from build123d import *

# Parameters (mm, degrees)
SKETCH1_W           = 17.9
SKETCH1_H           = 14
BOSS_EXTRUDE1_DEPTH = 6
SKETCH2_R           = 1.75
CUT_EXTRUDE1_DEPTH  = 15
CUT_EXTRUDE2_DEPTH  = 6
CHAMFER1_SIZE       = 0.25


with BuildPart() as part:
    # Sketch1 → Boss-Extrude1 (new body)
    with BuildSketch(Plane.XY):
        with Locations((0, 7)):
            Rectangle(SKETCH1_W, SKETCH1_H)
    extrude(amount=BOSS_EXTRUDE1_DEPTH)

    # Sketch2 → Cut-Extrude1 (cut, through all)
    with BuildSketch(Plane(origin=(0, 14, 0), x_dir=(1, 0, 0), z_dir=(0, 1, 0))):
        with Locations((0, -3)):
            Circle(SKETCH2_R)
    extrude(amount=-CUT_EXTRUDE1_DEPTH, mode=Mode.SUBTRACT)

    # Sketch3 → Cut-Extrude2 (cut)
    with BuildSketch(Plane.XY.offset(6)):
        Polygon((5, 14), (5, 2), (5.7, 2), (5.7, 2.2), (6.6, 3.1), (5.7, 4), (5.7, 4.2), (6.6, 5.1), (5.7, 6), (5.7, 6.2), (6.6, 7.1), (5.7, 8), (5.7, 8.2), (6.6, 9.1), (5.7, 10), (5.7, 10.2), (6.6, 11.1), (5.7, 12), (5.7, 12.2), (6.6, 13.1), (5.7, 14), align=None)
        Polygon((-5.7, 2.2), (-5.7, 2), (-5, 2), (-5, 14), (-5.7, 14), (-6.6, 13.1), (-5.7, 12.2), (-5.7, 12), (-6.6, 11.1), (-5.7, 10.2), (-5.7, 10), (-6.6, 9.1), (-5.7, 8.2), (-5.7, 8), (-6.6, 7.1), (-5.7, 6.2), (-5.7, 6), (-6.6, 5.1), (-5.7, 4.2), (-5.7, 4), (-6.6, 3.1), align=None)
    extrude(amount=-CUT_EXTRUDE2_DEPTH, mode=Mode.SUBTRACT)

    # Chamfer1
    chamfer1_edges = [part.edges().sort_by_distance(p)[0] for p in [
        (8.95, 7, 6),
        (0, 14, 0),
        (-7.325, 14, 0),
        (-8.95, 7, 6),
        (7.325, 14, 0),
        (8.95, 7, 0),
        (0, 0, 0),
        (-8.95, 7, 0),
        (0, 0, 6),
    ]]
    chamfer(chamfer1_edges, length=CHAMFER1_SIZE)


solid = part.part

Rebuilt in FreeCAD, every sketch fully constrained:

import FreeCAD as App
import Part
import Sketcher

V = App.Vector


def edges_at(feature, points):
    """Names of the edges that pass closest to the given points."""
    edges = feature.Shape.Edges
    near = lambda p: min(range(len(edges)), key=lambda i: edges[i].distToShape(Part.Vertex(*p))[0])
    return sorted({f"Edge{near(p) + 1}" for p in points})

doc = App.newDocument("Part")
body = doc.addObject("PartDesign::Body", "Body")

# Sketch on XY plane
sketch1 = body.newObject("Sketcher::SketchObject", "Sketch")
sketch1.AttachmentSupport = (doc.getObject("XY_Plane"), [""])
sketch1.MapMode = "FlatFace"
sketch1.addGeometry(Part.LineSegment(V(-9, 14, 0), V(-9, 0, 0)), False)
sketch1.addGeometry(Part.LineSegment(V(-9, 0, 0), V(9, 0, 0)), False)
sketch1.addGeometry(Part.LineSegment(V(9, 0, 0), V(9, 14, 0)), False)
sketch1.addGeometry(Part.LineSegment(V(9, 14, 0), V(-9, 14, 0)), False)
sketch1.addConstraint(Sketcher.Constraint("Coincident", 0, 2, 1, 1))
sketch1.addConstraint(Sketcher.Constraint("Coincident", 1, 2, 2, 1))
sketch1.addConstraint(Sketcher.Constraint("Coincident", 2, 2, 3, 1))
sketch1.addConstraint(Sketcher.Constraint("Coincident", 3, 2, 0, 1))
sketch1.addConstraint(Sketcher.Constraint("Vertical", 0))
sketch1.addConstraint(Sketcher.Constraint("Horizontal", 1))
sketch1.addConstraint(Sketcher.Constraint("Vertical", 2))
sketch1.addConstraint(Sketcher.Constraint("Horizontal", 3))
sketch1.addConstraint(Sketcher.Constraint("Symmetric", 0, 2, 1, 2, -1, 1))
sketch1.addConstraint(Sketcher.Constraint("DistanceY", 0, 2, 0, 1, 14.0))
sketch1.addConstraint(Sketcher.Constraint("DistanceX", 1, 1, 1, 2, 17.9))
pad1 = body.newObject("PartDesign::Pad", "Pad")
pad1.Profile = sketch1
pad1.Length = 6

# Sketch on XZ plane
sketch2 = body.newObject("Sketcher::SketchObject", "Sketch001")
sketch2.AttachmentSupport = (doc.getObject("XZ_Plane"), [""])
sketch2.MapMode = "FlatFace"
sketch2.AttachmentOffset = App.Placement(V(0, 0, -14), App.Rotation())
sketch2.addGeometry(Part.Circle(V(0, 3, 0), V(0, 0, 1), 1.8), False)
sketch2.addConstraint(Sketcher.Constraint("PointOnObject", 0, 3, -2))
sketch2.addConstraint(Sketcher.Constraint("Diameter", 0, 3.5))
sketch2.addConstraint(Sketcher.Constraint("DistanceY", -1, 1, 0, 3, 3.0))
pocket1 = body.newObject("PartDesign::Pocket", "Pocket")
pocket1.Profile = sketch2
pocket1.Type = "ThroughAll"
pocket1.Reversed = True

# Sketch on XY plane
sketch3 = body.newObject("Sketcher::SketchObject", "Sketch002")
sketch3.AttachmentSupport = (doc.getObject("XY_Plane"), [""])
sketch3.MapMode = "FlatFace"
sketch3.AttachmentOffset = App.Placement(V(0, 0, 6), App.Rotation())
sketch3.addGeometry(Part.LineSegment(V(5, 14, 0), V(5, 2, 0)), False)
sketch3.addGeometry(Part.LineSegment(V(5, 2, 0), V(5.7, 2, 0)), False)
sketch3.addGeometry(Part.LineSegment(V(5.7, 2, 0), V(5.7, 2.2, 0)), False)
sketch3.addGeometry(Part.LineSegment(V(5.7, 2.2, 0), V(6.6, 3.1, 0)), False)
sketch3.addGeometry(Part.LineSegment(V(6.6, 3.1, 0), V(5.7, 4, 0)), False)
sketch3.addGeometry(Part.LineSegment(V(5.7, 4, 0), V(5.7, 4.2, 0)), False)
sketch3.addGeometry(Part.LineSegment(V(5.7, 4.2, 0), V(6.6, 5.1, 0)), False)
sketch3.addGeometry(Part.LineSegment(V(6.6, 5.1, 0), V(5.7, 6, 0)), False)
sketch3.addGeometry(Part.LineSegment(V(5.7, 6, 0), V(5.7, 6.2, 0)), False)
sketch3.addGeometry(Part.LineSegment(V(5.7, 6.2, 0), V(6.6, 7.1, 0)), False)
sketch3.addGeometry(Part.LineSegment(V(6.6, 7.1, 0), V(5.7, 8, 0)), False)
sketch3.addGeometry(Part.LineSegment(V(5.7, 8, 0), V(5.7, 8.2, 0)), False)
sketch3.addGeometry(Part.LineSegment(V(5.7, 8.2, 0), V(6.6, 9.1, 0)), False)
sketch3.addGeometry(Part.LineSegment(V(6.6, 9.1, 0), V(5.7, 10, 0)), False)
sketch3.addGeometry(Part.LineSegment(V(5.7, 10, 0), V(5.7, 10.2, 0)), False)
sketch3.addGeometry(Part.LineSegment(V(5.7, 10.2, 0), V(6.6, 11.1, 0)), False)
sketch3.addGeometry(Part.LineSegment(V(6.6, 11.1, 0), V(5.7, 12, 0)), False)
sketch3.addGeometry(Part.LineSegment(V(5.7, 12, 0), V(5.7, 12.2, 0)), False)
sketch3.addGeometry(Part.LineSegment(V(5.7, 12.2, 0), V(6.6, 13.1, 0)), False)
sketch3.addGeometry(Part.LineSegment(V(6.6, 13.1, 0), V(5.7, 14, 0)), False)
sketch3.addGeometry(Part.LineSegment(V(5.7, 14, 0), V(5, 14, 0)), False)
sketch3.addGeometry(Part.LineSegment(V(-5.7, 2.2, 0), V(-5.7, 2, 0)), False)
sketch3.addGeometry(Part.LineSegment(V(-5.7, 2, 0), V(-5, 2, 0)), False)
sketch3.addGeometry(Part.LineSegment(V(-5, 2, 0), V(-5, 14, 0)), False)
sketch3.addGeometry(Part.LineSegment(V(-5, 14, 0), V(-5.7, 14, 0)), False)
sketch3.addGeometry(Part.LineSegment(V(-5.7, 14, 0), V(-6.6, 13.1, 0)), False)
sketch3.addGeometry(Part.LineSegment(V(-6.6, 13.1, 0), V(-5.7, 12.2, 0)), False)
sketch3.addGeometry(Part.LineSegment(V(-5.7, 12.2, 0), V(-5.7, 12, 0)), False)
sketch3.addGeometry(Part.LineSegment(V(-5.7, 12, 0), V(-6.6, 11.1, 0)), False)
sketch3.addGeometry(Part.LineSegment(V(-6.6, 11.1, 0), V(-5.7, 10.2, 0)), False)
sketch3.addGeometry(Part.LineSegment(V(-5.7, 10.2, 0), V(-5.7, 10, 0)), False)
sketch3.addGeometry(Part.LineSegment(V(-5.7, 10, 0), V(-6.6, 9.1, 0)), False)
sketch3.addGeometry(Part.LineSegment(V(-6.6, 9.1, 0), V(-5.7, 8.2, 0)), False)
sketch3.addGeometry(Part.LineSegment(V(-5.7, 8.2, 0), V(-5.7, 8, 0)), False)
sketch3.addGeometry(Part.LineSegment(V(-5.7, 8, 0), V(-6.6, 7.1, 0)), False)
sketch3.addGeometry(Part.LineSegment(V(-6.6, 7.1, 0), V(-5.7, 6.2, 0)), False)
sketch3.addGeometry(Part.LineSegment(V(-5.7, 6.2, 0), V(-5.7, 6, 0)), False)
sketch3.addGeometry(Part.LineSegment(V(-5.7, 6, 0), V(-6.6, 5.1, 0)), False)
sketch3.addGeometry(Part.LineSegment(V(-6.6, 5.1, 0), V(-5.7, 4.2, 0)), False)
sketch3.addGeometry(Part.LineSegment(V(-5.7, 4.2, 0), V(-5.7, 4, 0)), False)
sketch3.addGeometry(Part.LineSegment(V(-5.7, 4, 0), V(-6.6, 3.1, 0)), False)
sketch3.addGeometry(Part.LineSegment(V(-6.6, 3.1, 0), V(-5.7, 2.2, 0)), False)
sketch3.addConstraint(Sketcher.Constraint("Coincident", 0, 2, 1, 1))
sketch3.addConstraint(Sketcher.Constraint("Coincident", 1, 2, 2, 1))
sketch3.addConstraint(Sketcher.Constraint("Coincident", 2, 2, 3, 1))
sketch3.addConstraint(Sketcher.Constraint("Coincident", 3, 2, 4, 1))
sketch3.addConstraint(Sketcher.Constraint("Coincident", 4, 2, 5, 1))
sketch3.addConstraint(Sketcher.Constraint("Coincident", 5, 2, 6, 1))
sketch3.addConstraint(Sketcher.Constraint("Coincident", 6, 2, 7, 1))
sketch3.addConstraint(Sketcher.Constraint("Coincident", 7, 2, 8, 1))
sketch3.addConstraint(Sketcher.Constraint("Coincident", 8, 2, 9, 1))
sketch3.addConstraint(Sketcher.Constraint("Coincident", 9, 2, 10, 1))
sketch3.addConstraint(Sketcher.Constraint("Coincident", 10, 2, 11, 1))
sketch3.addConstraint(Sketcher.Constraint("Coincident", 11, 2, 12, 1))
sketch3.addConstraint(Sketcher.Constraint("Coincident", 12, 2, 13, 1))
sketch3.addConstraint(Sketcher.Constraint("Coincident", 13, 2, 14, 1))
sketch3.addConstraint(Sketcher.Constraint("Coincident", 14, 2, 15, 1))
sketch3.addConstraint(Sketcher.Constraint("Coincident", 15, 2, 16, 1))
sketch3.addConstraint(Sketcher.Constraint("Coincident", 16, 2, 17, 1))
sketch3.addConstraint(Sketcher.Constraint("Coincident", 17, 2, 18, 1))
sketch3.addConstraint(Sketcher.Constraint("Coincident", 18, 2, 19, 1))
sketch3.addConstraint(Sketcher.Constraint("Coincident", 19, 2, 20, 1))
sketch3.addConstraint(Sketcher.Constraint("Coincident", 20, 2, 0, 1))
sketch3.addConstraint(Sketcher.Constraint("Coincident", 21, 2, 22, 1))
sketch3.addConstraint(Sketcher.Constraint("Coincident", 22, 2, 23, 1))
sketch3.addConstraint(Sketcher.Constraint("Coincident", 23, 2, 24, 1))
sketch3.addConstraint(Sketcher.Constraint("Coincident", 24, 2, 25, 1))
sketch3.addConstraint(Sketcher.Constraint("Coincident", 25, 2, 26, 1))
sketch3.addConstraint(Sketcher.Constraint("Coincident", 26, 2, 27, 1))
sketch3.addConstraint(Sketcher.Constraint("Coincident", 27, 2, 28, 1))
sketch3.addConstraint(Sketcher.Constraint("Coincident", 28, 2, 29, 1))
sketch3.addConstraint(Sketcher.Constraint("Coincident", 29, 2, 30, 1))
sketch3.addConstraint(Sketcher.Constraint("Coincident", 30, 2, 31, 1))
sketch3.addConstraint(Sketcher.Constraint("Coincident", 31, 2, 32, 1))
sketch3.addConstraint(Sketcher.Constraint("Coincident", 32, 2, 33, 1))
sketch3.addConstraint(Sketcher.Constraint("Coincident", 33, 2, 34, 1))
sketch3.addConstraint(Sketcher.Constraint("Coincident", 34, 2, 35, 1))
sketch3.addConstraint(Sketcher.Constraint("Coincident", 35, 2, 36, 1))
sketch3.addConstraint(Sketcher.Constraint("Coincident", 36, 2, 37, 1))
sketch3.addConstraint(Sketcher.Constraint("Coincident", 37, 2, 38, 1))
sketch3.addConstraint(Sketcher.Constraint("Coincident", 38, 2, 39, 1))
sketch3.addConstraint(Sketcher.Constraint("Coincident", 39, 2, 40, 1))
sketch3.addConstraint(Sketcher.Constraint("Coincident", 40, 2, 41, 1))
sketch3.addConstraint(Sketcher.Constraint("Coincident", 41, 2, 21, 1))
sketch3.addConstraint(Sketcher.Constraint("Vertical", 0))
sketch3.addConstraint(Sketcher.Constraint("Horizontal", 1))
sketch3.addConstraint(Sketcher.Constraint("Vertical", 2))
sketch3.addConstraint(Sketcher.Constraint("Vertical", 5))
sketch3.addConstraint(Sketcher.Constraint("Vertical", 8))
sketch3.addConstraint(Sketcher.Constraint("Vertical", 11))
sketch3.addConstraint(Sketcher.Constraint("Vertical", 14))
sketch3.addConstraint(Sketcher.Constraint("Vertical", 17))
sketch3.addConstraint(Sketcher.Constraint("Horizontal", 20))
sketch3.addConstraint(Sketcher.Constraint("Vertical", 21))
sketch3.addConstraint(Sketcher.Constraint("Horizontal", 22))
sketch3.addConstraint(Sketcher.Constraint("Vertical", 23))
sketch3.addConstraint(Sketcher.Constraint("Horizontal", 24))
sketch3.addConstraint(Sketcher.Constraint("Vertical", 27))
sketch3.addConstraint(Sketcher.Constraint("Vertical", 30))
sketch3.addConstraint(Sketcher.Constraint("Vertical", 33))
sketch3.addConstraint(Sketcher.Constraint("Vertical", 36))
sketch3.addConstraint(Sketcher.Constraint("Vertical", 39))
sketch3.addConstraint(Sketcher.Constraint("Symmetric", 1, 2, 21, 2, -2))
sketch3.addConstraint(Sketcher.Constraint("Symmetric", 20, 2, 23, 2, -2))
sketch3.addConstraint(Sketcher.Constraint("Symmetric", 18, 2, 25, 2, -2))
sketch3.addConstraint(Sketcher.Constraint("Symmetric", 17, 2, 26, 2, -2))
sketch3.addConstraint(Sketcher.Constraint("Symmetric", 15, 2, 28, 2, -2))
sketch3.addConstraint(Sketcher.Constraint("Symmetric", 14, 2, 29, 2, -2))
sketch3.addConstraint(Sketcher.Constraint("Symmetric", 12, 2, 31, 2, -2))
sketch3.addConstraint(Sketcher.Constraint("Symmetric", 11, 2, 32, 2, -2))
sketch3.addConstraint(Sketcher.Constraint("Symmetric", 9, 2, 34, 2, -2))
sketch3.addConstraint(Sketcher.Constraint("Symmetric", 8, 2, 35, 2, -2))
sketch3.addConstraint(Sketcher.Constraint("Symmetric", 6, 2, 37, 2, -2))
sketch3.addConstraint(Sketcher.Constraint("Symmetric", 5, 2, 38, 2, -2))
sketch3.addConstraint(Sketcher.Constraint("Symmetric", 3, 2, 40, 2, -2))
sketch3.addConstraint(Sketcher.Constraint("Perpendicular", 3, 4))
sketch3.addConstraint(Sketcher.Constraint("Perpendicular", 4, 6))
sketch3.addConstraint(Sketcher.Constraint("Perpendicular", 6, 7))
sketch3.addConstraint(Sketcher.Constraint("Perpendicular", 7, 9))
sketch3.addConstraint(Sketcher.Constraint("Perpendicular", 9, 10))
sketch3.addConstraint(Sketcher.Constraint("Perpendicular", 10, 12))
sketch3.addConstraint(Sketcher.Constraint("Perpendicular", 12, 13))
sketch3.addConstraint(Sketcher.Constraint("Perpendicular", 13, 15))
sketch3.addConstraint(Sketcher.Constraint("Perpendicular", 15, 16))
sketch3.addConstraint(Sketcher.Constraint("Perpendicular", 16, 18))
sketch3.addConstraint(Sketcher.Constraint("Perpendicular", 18, 19))
sketch3.addConstraint(Sketcher.Constraint("Perpendicular", 19, 25))
sketch3.addConstraint(Sketcher.Constraint("Perpendicular", 25, 26))
sketch3.addConstraint(Sketcher.Constraint("Perpendicular", 26, 28))
sketch3.addConstraint(Sketcher.Constraint("Perpendicular", 29, 31))
sketch3.addConstraint(Sketcher.Constraint("Perpendicular", 32, 34))
sketch3.addConstraint(Sketcher.Constraint("Perpendicular", 35, 37))
sketch3.addConstraint(Sketcher.Constraint("Perpendicular", 38, 40))
sketch3.addConstraint(Sketcher.Constraint("Perpendicular", 40, 41))
sketch3.addConstraint(Sketcher.Constraint("Vertical", 2, 2, 4, 2))
sketch3.addConstraint(Sketcher.Constraint("Vertical", 3, 2, 6, 2))
sketch3.addConstraint(Sketcher.Constraint("Vertical", 5, 2, 7, 2))
sketch3.addConstraint(Sketcher.Constraint("Vertical", 6, 2, 9, 2))
sketch3.addConstraint(Sketcher.Constraint("Vertical", 8, 2, 10, 2))
sketch3.addConstraint(Sketcher.Constraint("Vertical", 9, 2, 12, 2))
sketch3.addConstraint(Sketcher.Constraint("Vertical", 11, 2, 13, 2))
sketch3.addConstraint(Sketcher.Constraint("Vertical", 12, 2, 15, 2))
sketch3.addConstraint(Sketcher.Constraint("Vertical", 14, 2, 16, 2))
sketch3.addConstraint(Sketcher.Constraint("Vertical", 15, 2, 18, 2))
sketch3.addConstraint(Sketcher.Constraint("Vertical", 17, 2, 19, 2))
sketch3.addConstraint(Sketcher.Constraint("Equal", 2, 5))
sketch3.addConstraint(Sketcher.Constraint("Equal", 5, 8))
sketch3.addConstraint(Sketcher.Constraint("Equal", 8, 11))
sketch3.addConstraint(Sketcher.Constraint("Equal", 11, 14))
sketch3.addConstraint(Sketcher.Constraint("Equal", 14, 17))
sketch3.addConstraint(Sketcher.Constraint("DistanceY", 0, 2, 0, 1, 12.0))
sketch3.addConstraint(Sketcher.Constraint("DistanceX", 1, 1, 1, 2, 0.7))
sketch3.addConstraint(Sketcher.Constraint("DistanceY", 2, 1, 2, 2, 0.2))
sketch3.addConstraint(Sketcher.Constraint("DistanceX", -1, 1, 0, 2, 5.0))
sketch3.addConstraint(Sketcher.Constraint("DistanceY", -1, 1, 0, 2, 2.0))
pocket2 = body.newObject("PartDesign::Pocket", "Pocket001")
pocket2.Profile = sketch3
pocket2.Length = 6
doc.recompute()

chamfer = body.newObject("PartDesign::Chamfer", "Chamfer")
chamfer.Base = (pocket2, edges_at(pocket2, [
    (8.95, 7, 6),
    (0, 14, 0),
    (-7.325, 14, 0),
    (-8.95, 7, 6),
    (7.325, 14, 0),
    (8.95, 7, 0),
    (0, 0, 0),
    (-8.95, 7, 0),
    (0, 0, 6),
]))
chamfer.Size = 0.25

doc.recompute()
